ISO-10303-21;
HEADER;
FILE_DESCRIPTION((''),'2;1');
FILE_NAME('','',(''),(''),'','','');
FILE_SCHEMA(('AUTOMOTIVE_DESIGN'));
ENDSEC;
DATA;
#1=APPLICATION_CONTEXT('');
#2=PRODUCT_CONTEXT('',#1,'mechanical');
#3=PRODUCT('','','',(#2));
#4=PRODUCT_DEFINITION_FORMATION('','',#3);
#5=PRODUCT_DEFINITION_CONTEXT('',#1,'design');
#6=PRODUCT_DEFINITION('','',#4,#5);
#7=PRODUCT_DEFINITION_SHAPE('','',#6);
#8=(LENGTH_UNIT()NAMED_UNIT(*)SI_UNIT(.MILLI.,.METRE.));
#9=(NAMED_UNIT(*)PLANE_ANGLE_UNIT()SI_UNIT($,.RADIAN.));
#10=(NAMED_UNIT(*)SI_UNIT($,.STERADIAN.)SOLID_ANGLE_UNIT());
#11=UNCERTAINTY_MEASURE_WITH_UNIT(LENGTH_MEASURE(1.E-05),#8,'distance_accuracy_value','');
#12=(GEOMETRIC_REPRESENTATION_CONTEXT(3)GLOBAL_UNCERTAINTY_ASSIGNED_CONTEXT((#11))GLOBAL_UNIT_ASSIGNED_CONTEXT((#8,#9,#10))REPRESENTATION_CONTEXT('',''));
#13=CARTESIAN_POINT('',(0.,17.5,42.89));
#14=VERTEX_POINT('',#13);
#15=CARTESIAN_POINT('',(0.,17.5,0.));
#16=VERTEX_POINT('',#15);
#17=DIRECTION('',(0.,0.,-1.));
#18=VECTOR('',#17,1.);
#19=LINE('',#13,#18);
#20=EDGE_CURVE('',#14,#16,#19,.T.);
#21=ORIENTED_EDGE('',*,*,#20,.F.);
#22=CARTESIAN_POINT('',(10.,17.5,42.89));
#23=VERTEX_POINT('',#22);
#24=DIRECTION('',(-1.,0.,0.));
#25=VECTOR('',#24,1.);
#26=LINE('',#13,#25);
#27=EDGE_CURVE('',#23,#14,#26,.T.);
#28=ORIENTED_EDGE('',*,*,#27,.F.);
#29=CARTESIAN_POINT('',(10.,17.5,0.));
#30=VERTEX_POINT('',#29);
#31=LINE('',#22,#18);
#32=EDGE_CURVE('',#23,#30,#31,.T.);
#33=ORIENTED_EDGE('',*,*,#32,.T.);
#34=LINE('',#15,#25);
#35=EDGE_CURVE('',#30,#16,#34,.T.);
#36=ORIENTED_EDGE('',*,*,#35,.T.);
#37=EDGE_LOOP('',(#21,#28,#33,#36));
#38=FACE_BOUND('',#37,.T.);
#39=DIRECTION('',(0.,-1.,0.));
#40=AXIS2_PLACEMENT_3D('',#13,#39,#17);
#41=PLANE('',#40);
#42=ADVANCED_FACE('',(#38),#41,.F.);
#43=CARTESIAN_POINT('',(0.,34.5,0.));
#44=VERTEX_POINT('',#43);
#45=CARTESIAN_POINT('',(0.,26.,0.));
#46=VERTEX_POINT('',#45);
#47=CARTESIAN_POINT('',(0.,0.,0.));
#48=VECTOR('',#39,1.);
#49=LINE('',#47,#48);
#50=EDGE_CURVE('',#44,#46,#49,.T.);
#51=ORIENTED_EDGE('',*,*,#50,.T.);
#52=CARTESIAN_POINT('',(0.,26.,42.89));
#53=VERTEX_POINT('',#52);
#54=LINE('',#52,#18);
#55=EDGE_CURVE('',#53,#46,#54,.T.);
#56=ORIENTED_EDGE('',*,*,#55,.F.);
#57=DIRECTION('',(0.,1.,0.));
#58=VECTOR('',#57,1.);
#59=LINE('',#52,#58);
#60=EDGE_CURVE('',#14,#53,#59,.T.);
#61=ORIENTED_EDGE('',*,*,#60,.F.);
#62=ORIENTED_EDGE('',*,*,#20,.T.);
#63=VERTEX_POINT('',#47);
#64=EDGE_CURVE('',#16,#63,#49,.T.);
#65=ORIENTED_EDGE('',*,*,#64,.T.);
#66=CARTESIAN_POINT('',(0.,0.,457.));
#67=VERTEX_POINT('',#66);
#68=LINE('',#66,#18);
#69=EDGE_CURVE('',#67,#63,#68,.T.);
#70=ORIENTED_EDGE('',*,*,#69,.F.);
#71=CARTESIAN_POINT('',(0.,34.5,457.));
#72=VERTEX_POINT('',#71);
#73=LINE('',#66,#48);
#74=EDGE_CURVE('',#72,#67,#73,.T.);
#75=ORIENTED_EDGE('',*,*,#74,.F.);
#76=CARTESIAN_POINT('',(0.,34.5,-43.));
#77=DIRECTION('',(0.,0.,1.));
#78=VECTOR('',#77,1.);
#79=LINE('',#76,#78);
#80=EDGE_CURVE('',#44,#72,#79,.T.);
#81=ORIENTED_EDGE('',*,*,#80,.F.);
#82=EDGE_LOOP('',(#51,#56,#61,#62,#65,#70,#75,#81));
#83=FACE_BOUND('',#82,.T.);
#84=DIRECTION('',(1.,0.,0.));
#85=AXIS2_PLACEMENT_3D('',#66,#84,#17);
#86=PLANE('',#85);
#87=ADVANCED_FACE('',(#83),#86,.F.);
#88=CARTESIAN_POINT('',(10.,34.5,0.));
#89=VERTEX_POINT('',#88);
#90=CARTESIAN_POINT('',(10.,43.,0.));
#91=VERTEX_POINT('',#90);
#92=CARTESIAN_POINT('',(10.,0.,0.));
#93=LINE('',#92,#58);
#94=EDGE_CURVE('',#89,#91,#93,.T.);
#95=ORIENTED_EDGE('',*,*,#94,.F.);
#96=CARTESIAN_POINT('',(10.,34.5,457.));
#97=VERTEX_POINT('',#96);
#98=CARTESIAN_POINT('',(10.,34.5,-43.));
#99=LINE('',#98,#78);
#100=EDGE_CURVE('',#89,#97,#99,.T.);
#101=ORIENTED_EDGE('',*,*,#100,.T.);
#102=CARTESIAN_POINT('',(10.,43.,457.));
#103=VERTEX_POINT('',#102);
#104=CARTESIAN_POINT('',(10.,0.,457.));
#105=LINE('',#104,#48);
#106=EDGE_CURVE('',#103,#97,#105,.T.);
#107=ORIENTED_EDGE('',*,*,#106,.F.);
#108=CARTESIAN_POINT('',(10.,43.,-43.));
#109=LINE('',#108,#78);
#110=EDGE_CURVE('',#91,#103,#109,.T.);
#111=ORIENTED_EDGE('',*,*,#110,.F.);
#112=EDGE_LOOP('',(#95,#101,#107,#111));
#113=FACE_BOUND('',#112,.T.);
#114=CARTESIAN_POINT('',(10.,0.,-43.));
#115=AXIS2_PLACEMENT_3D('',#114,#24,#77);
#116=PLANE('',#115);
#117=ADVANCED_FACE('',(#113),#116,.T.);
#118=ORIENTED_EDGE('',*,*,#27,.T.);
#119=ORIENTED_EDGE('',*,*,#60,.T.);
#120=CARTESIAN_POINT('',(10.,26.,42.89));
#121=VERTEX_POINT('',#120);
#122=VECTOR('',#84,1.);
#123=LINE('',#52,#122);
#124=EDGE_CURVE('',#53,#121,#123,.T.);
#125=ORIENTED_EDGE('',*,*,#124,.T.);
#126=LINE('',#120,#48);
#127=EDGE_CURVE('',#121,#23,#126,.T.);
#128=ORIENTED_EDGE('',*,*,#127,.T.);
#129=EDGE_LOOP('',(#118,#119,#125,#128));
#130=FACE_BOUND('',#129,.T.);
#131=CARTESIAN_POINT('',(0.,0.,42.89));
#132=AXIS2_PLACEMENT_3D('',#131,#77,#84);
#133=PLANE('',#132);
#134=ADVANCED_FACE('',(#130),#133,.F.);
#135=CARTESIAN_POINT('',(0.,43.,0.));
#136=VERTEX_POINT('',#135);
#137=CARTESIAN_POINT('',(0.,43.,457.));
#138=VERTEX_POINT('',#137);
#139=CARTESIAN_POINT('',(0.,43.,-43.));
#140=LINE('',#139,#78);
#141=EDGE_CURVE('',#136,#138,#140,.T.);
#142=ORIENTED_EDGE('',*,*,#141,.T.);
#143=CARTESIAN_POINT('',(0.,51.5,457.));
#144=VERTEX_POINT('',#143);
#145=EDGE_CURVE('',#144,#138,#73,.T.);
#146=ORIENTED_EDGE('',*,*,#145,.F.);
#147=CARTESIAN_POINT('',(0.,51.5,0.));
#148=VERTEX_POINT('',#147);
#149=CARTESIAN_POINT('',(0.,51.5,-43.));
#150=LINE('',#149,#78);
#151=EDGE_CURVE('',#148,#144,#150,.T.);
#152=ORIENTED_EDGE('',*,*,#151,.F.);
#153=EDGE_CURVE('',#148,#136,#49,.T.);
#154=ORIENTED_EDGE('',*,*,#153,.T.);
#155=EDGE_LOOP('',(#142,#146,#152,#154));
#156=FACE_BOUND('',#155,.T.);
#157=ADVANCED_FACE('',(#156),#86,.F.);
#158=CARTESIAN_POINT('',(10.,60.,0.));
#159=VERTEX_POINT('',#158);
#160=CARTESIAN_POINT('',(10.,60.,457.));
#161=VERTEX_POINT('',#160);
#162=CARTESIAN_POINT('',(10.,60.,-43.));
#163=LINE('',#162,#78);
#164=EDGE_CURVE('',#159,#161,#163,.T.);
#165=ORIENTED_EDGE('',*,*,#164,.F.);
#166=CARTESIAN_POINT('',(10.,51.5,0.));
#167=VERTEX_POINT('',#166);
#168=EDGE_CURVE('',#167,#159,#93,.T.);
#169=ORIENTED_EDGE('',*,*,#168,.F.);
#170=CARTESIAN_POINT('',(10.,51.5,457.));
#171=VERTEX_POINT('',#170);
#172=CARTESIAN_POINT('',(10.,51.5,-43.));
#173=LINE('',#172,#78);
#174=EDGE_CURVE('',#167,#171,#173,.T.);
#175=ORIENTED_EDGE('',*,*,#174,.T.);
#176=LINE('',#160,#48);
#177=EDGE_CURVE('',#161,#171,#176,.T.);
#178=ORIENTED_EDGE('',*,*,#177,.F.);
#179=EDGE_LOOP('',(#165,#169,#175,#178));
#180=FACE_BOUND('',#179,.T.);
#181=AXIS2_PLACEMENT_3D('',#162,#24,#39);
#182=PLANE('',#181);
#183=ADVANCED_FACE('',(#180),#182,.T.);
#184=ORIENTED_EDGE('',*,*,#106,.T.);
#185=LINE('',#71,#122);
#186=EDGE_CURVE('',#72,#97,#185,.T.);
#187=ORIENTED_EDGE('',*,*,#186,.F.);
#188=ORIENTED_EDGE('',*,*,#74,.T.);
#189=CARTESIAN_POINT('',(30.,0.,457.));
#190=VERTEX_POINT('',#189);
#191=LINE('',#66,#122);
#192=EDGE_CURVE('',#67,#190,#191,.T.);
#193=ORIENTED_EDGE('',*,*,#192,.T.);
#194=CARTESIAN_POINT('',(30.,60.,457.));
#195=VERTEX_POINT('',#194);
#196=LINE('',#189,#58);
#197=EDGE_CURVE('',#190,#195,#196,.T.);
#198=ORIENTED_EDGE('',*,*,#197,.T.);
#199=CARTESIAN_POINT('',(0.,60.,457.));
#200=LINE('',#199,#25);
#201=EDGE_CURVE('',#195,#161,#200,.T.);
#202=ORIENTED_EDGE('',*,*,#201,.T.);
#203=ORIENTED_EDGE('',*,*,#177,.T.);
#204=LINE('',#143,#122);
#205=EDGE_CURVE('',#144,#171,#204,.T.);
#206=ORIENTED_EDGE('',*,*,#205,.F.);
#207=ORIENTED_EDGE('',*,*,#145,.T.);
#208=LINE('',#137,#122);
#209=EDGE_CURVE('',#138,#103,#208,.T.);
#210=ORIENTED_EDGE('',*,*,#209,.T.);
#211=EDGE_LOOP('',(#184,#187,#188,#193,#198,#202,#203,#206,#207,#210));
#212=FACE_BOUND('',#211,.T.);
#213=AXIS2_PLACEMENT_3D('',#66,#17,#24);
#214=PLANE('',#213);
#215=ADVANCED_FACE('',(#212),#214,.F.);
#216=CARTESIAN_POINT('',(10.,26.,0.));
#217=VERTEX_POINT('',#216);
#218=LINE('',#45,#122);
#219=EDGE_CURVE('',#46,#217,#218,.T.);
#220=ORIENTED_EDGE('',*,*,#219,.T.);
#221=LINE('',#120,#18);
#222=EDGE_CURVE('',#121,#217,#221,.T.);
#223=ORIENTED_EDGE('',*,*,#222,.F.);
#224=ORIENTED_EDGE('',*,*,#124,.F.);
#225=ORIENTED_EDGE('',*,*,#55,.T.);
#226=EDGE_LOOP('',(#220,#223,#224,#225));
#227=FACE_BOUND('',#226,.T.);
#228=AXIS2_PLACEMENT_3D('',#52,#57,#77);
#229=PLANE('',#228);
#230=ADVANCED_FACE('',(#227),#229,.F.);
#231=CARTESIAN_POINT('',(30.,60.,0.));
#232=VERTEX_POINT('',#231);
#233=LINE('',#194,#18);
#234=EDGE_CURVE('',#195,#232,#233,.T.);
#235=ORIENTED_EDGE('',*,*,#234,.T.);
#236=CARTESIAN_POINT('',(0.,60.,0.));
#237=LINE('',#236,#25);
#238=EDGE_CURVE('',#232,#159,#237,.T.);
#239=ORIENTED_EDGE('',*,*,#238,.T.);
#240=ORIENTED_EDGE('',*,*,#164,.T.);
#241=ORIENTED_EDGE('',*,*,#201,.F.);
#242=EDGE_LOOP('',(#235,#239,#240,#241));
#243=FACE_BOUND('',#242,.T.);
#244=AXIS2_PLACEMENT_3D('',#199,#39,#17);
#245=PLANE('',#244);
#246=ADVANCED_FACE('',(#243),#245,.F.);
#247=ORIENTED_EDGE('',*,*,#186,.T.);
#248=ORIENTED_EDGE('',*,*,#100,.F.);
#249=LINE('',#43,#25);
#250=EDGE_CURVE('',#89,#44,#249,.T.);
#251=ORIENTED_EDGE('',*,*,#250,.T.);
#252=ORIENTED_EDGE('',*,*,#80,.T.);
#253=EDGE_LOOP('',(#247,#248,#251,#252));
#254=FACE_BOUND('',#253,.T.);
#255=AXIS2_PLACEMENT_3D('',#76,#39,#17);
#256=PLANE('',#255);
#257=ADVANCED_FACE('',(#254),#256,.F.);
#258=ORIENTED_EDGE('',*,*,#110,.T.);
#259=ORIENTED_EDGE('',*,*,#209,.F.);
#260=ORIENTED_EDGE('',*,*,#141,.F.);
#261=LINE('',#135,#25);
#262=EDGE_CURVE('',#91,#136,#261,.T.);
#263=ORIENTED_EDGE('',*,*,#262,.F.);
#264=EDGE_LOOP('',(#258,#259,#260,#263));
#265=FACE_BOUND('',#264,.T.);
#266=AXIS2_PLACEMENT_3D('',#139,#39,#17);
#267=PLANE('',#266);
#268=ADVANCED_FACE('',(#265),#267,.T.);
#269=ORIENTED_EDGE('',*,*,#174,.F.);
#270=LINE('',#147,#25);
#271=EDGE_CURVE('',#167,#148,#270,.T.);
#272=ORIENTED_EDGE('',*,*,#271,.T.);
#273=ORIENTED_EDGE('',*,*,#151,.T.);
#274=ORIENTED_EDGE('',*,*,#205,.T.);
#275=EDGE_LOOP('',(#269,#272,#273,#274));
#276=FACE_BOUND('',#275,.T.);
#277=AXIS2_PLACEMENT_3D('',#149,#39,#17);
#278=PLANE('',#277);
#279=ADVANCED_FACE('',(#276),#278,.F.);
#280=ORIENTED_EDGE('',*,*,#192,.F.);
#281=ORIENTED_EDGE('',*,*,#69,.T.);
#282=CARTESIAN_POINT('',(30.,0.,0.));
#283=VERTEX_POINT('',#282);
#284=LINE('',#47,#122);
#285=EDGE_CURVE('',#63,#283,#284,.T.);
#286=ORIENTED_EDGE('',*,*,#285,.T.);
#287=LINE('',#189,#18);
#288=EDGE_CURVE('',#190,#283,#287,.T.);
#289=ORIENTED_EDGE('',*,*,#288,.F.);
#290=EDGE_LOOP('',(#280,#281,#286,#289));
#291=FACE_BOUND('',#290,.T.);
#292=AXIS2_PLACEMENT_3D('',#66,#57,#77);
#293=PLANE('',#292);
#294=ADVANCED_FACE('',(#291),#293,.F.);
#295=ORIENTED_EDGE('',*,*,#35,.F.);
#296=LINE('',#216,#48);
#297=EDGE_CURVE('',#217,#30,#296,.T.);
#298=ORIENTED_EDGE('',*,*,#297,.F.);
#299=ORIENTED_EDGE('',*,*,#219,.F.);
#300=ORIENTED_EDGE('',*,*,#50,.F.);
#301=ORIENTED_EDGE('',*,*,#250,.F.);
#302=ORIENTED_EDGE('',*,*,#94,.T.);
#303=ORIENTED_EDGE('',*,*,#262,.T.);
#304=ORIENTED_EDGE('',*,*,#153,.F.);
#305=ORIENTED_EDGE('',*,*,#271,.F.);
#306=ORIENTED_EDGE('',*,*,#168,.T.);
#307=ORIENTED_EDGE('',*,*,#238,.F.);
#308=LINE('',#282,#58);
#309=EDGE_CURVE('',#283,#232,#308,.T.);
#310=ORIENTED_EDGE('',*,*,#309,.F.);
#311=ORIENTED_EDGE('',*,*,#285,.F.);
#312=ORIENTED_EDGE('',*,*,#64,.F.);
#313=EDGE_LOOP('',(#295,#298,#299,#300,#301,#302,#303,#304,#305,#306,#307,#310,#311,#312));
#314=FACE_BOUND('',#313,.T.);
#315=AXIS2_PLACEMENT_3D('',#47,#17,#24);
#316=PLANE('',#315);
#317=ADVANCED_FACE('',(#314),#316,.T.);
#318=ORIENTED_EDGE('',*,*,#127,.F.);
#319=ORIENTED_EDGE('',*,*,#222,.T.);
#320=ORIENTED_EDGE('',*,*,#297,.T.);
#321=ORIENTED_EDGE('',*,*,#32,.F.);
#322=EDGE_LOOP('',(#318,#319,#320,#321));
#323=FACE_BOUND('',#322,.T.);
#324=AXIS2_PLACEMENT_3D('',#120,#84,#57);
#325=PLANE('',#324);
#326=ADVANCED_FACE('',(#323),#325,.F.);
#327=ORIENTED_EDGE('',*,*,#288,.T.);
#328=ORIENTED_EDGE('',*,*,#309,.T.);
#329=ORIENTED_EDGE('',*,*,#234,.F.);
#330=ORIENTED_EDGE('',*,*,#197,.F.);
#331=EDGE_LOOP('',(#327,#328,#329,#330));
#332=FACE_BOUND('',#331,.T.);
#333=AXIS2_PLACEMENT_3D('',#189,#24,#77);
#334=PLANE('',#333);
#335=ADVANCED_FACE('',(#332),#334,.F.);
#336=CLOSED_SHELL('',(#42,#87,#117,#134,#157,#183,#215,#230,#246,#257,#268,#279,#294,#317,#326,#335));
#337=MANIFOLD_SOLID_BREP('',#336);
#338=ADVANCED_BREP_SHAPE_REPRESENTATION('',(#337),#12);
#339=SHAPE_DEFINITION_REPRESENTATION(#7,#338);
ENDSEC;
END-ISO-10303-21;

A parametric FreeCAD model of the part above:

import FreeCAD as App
import Part
import Sketcher

doc = App.newDocument("Part")
params = doc.addObject("Spreadsheet::Sheet", "Params")
for row, (alias, value) in enumerate([
    ("sketch1_width", "30 mm"),
    ("sketch1_height", "60 mm"),
    ("pad1_length", "457 mm"),
    ("sketch2_width", "10 mm"),
    ("sketch2_height", "8.5 mm"),
    ("pocket1_length", "500 mm"),
    ("sketch3_width", "10 mm"),
    ("sketch3_height", "8.5 mm"),
    ("pocket2_length", "42.89 mm"),
], start=1):
    params.set(f"A{row}", alias)
    params.set(f"B{row}", "=" + value)
    params.setAlias(f"B{row}", alias)

body = doc.addObject("PartDesign::Body", "Body")

sketch1 = body.newObject("Sketcher::SketchObject", "Sketch")
sketch1.AttachmentSupport = (doc.getObject("XY_Plane"), [""])
sketch1.MapMode = "FlatFace"
sketch1.addGeometry(Part.LineSegment(App.Vector(0, 60, 0), App.Vector(0, 0, 0)), False)
sketch1.addGeometry(Part.LineSegment(App.Vector(0, 0, 0), App.Vector(30, 0, 0)), False)
sketch1.addGeometry(Part.LineSegment(App.Vector(30, 0, 0), App.Vector(30, 60, 0)), False)
sketch1.addGeometry(Part.LineSegment(App.Vector(30, 60, 0), App.Vector(0, 60, 0)), False)
sketch1.addConstraint(Sketcher.Constraint("Coincident", 0, 2, 1, 1))
sketch1.addConstraint(Sketcher.Constraint("Coincident", 1, 2, 2, 1))
sketch1.addConstraint(Sketcher.Constraint("Coincident", 2, 2, 3, 1))
sketch1.addConstraint(Sketcher.Constraint("Coincident", 3, 2, 0, 1))
sketch1.addConstraint(Sketcher.Constraint("Vertical", 0))
sketch1.addConstraint(Sketcher.Constraint("Horizontal", 1))
sketch1.addConstraint(Sketcher.Constraint("Vertical", 2))
sketch1.addConstraint(Sketcher.Constraint("Horizontal", 3))
sketch1.addConstraint(Sketcher.Constraint("Coincident", 0, 2, -1, 1))
sketch1.addConstraint(Sketcher.Constraint("DistanceX", 1, 1, 1, 2, 30.0))
sketch1.addConstraint(Sketcher.Constraint("DistanceY", 0, 2, 0, 1, 60.0))
sketch1.setExpression("Constraints[9]", "Params.sketch1_width")
sketch1.setExpression("Constraints[10]", "Params.sketch1_height")
pad1 = body.newObject("PartDesign::Pad", "Pad")
pad1.Profile = sketch1
pad1.setExpression("Length", "Params.pad1_length")

sketch2 = body.newObject("Sketcher::SketchObject", "Sketch001")
sketch2.AttachmentSupport = (doc.getObject("XY_Plane"), [""])
sketch2.MapMode = "FlatFace"
sketch2.AttachmentOffset = App.Placement(App.Vector(0, 0, 457), App.Rotation())
sketch2.addGeometry(Part.LineSegment(App.Vector(0, 43, 0), App.Vector(0, 34.5, 0)), False)
sketch2.addGeometry(Part.LineSegment(App.Vector(0, 34.5, 0), App.Vector(10, 34.5, 0)), False)
sketch2.addGeometry(Part.LineSegment(App.Vector(10, 34.5, 0), App.Vector(10, 43, 0)), False)
sketch2.addGeometry(Part.LineSegment(App.Vector(10, 43, 0), App.Vector(0, 43, 0)), False)
sketch2.addGeometry(Part.LineSegment(App.Vector(0, 60, 0), App.Vector(0, 51.5, 0)), False)
sketch2.addGeometry(Part.LineSegment(App.Vector(0, 51.5, 0), App.Vector(10, 51.5, 0)), False)
sketch2.addGeometry(Part.LineSegment(App.Vector(10, 51.5, 0), App.Vector(10, 60, 0)), False)
sketch2.addGeometry(Part.LineSegment(App.Vector(10, 60, 0), App.Vector(0, 60, 0)), False)
sketch2.addConstraint(Sketcher.Constraint("Coincident", 0, 2, 1, 1))
sketch2.addConstraint(Sketcher.Constraint("Coincident", 1, 2, 2, 1))
sketch2.addConstraint(Sketcher.Constraint("Coincident", 2, 2, 3, 1))
sketch2.addConstraint(Sketcher.Constraint("Coincident", 3, 2, 0, 1))
sketch2.addConstraint(Sketcher.Constraint("Coincident", 4, 2, 5, 1))
sketch2.addConstraint(Sketcher.Constraint("Coincident", 5, 2, 6, 1))
sketch2.addConstraint(Sketcher.Constraint("Coincident", 6, 2, 7, 1))
sketch2.addConstraint(Sketcher.Constraint("Coincident", 7, 2, 4, 1))
sketch2.addConstraint(Sketcher.Constraint("Vertical", 0))
sketch2.addConstraint(Sketcher.Constraint("Horizontal", 1))
sketch2.addConstraint(Sketcher.Constraint("Vertical", 2))
sketch2.addConstraint(Sketcher.Constraint("Horizontal", 3))
sketch2.addConstraint(Sketcher.Constraint("Vertical", 4))
sketch2.addConstraint(Sketcher.Constraint("Horizontal", 5))
sketch2.addConstraint(Sketcher.Constraint("Vertical", 6))
sketch2.addConstraint(Sketcher.Constraint("Horizontal", 7))
sketch2.addConstraint(Sketcher.Constraint("PointOnObject", 0, 2, -2))
sketch2.addConstraint(Sketcher.Constraint("PointOnObject", 4, 2, -2))
sketch2.addConstraint(Sketcher.Constraint("Vertical", 2, 2, 5, 2))
sketch2.addConstraint(Sketcher.Constraint("Equal", 2, 4))
sketch2.addConstraint(Sketcher.Constraint("DistanceX", 1, 1, 1, 2, 10.0))
sketch2.addConstraint(Sketcher.Constraint("DistanceY", 0, 2, 0, 1, 8.5))
sketch2.addConstraint(Sketcher.Constraint("DistanceY", -1, 1, 2, 2, 43.0))
sketch2.addConstraint(Sketcher.Constraint("DistanceY", -1, 1, 6, 2, 60.0))
sketch2.setExpression("Constraints[20]", "Params.sketch2_width")
sketch2.setExpression("Constraints[21]", "Params.sketch2_height")
pocket1 = body.newObject("PartDesign::Pocket", "Pocket")
pocket1.Profile = sketch2
pocket1.setExpression("Length", "Params.pocket1_length")

sketch3 = body.newObject("Sketcher::SketchObject", "Sketch002")
sketch3.AttachmentSupport = (doc.getObject("XY_Plane"), [""])
sketch3.MapMode = "FlatFace"
sketch3.addGeometry(Part.LineSegment(App.Vector(10, 26, 0), App.Vector(10, 17.5, 0)), False)
sketch3.addGeometry(Part.LineSegment(App.Vector(10, 17.5, 0), App.Vector(0, 17.5, 0)), False)
sketch3.addGeometry(Part.LineSegment(App.Vector(0, 17.5, 0), App.Vector(0, 26, 0)), False)
sketch3.addGeometry(Part.LineSegment(App.Vector(0, 26, 0), App.Vector(10, 26, 0)), False)
sketch3.addConstraint(Sketcher.Constraint("Coincident", 0, 2, 1, 1))
sketch3.addConstraint(Sketcher.Constraint("Coincident", 1, 2, 2, 1))
sketch3.addConstraint(Sketcher.Constraint("Coincident", 2, 2, 3, 1))
sketch3.addConstraint(Sketcher.Constraint("Coincident", 3, 2, 0, 1))
sketch3.addConstraint(Sketcher.Constraint("Vertical", 0))
sketch3.addConstraint(Sketcher.Constraint("Horizontal", 1))
sketch3.addConstraint(Sketcher.Constraint("Vertical", 2))
sketch3.addConstraint(Sketcher.Constraint("Horizontal", 3))
sketch3.addConstraint(Sketcher.Constraint("PointOnObject", 1, 2, -2))
sketch3.addConstraint(Sketcher.Constraint("DistanceX", 1, 2, 1, 1, 10.0))
sketch3.addConstraint(Sketcher.Constraint("DistanceY", 0, 2, 0, 1, 8.5))
sketch3.addConstraint(Sketcher.Constraint("DistanceY", -1, 1, 2, 2, 26.0))
sketch3.setExpression("Constraints[9]", "Params.sketch3_width")
sketch3.setExpression("Constraints[10]", "Params.sketch3_height")
pocket2 = body.newObject("PartDesign::Pocket", "Pocket001")
pocket2.Profile = sketch3
pocket2.setExpression("Length", "Params.pocket2_length")
pocket2.Reversed = True

doc.recompute()
